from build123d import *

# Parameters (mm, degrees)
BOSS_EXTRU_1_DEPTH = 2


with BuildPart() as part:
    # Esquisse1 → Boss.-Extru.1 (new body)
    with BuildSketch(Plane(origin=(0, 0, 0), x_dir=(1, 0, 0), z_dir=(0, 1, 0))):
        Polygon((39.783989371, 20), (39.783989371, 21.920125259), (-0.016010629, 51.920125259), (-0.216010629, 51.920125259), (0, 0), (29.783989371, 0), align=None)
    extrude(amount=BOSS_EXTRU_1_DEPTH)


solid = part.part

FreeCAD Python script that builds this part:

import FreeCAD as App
import Part
import Sketcher
Q = App.Units.Quantity


def add_polygon(sketch, points):
    """Adds a closed chain of lines whose ends are joined by coincident constraints."""
    first, n = sketch.GeometryCount, len(points)
    for a, b in zip(points, points[1:] + points[:1]):
        sketch.addGeometry(Part.LineSegment(App.Vector(*a, 0), App.Vector(*b, 0)), False)
    for i in range(n):
        sketch.addConstraint(Sketcher.Constraint("Coincident", first + i, 2, first + (i + 1) % n, 1))

doc = App.newDocument("Part")
body = doc.addObject("PartDesign::Body", "Body")

# Sketch on XZ plane
sketch1 = body.newObject("Sketcher::SketchObject", "Sketch")
sketch1.AttachmentSupport = (doc.getObject("XZ_Plane"), [""])
sketch1.MapMode = "FlatFace"
add_polygon(sketch1, [(39.78, -20), (39.78, -21.92), (-0.02, -51.92), (-0.22, -51.92), (0, 0), (29.78, 0)])  # lines 0-5
sketch1.addConstraint(Sketcher.Constraint("Vertical", 0))
sketch1.addConstraint(Sketcher.Constraint("Horizontal", 2))
sketch1.addConstraint(Sketcher.Constraint("Horizontal", 4))
sketch1.addConstraint(Sketcher.Constraint("Coincident", 3, 2, -1, 1))
sketch1.addConstraint(Sketcher.Constraint("DistanceX", 2, 2, 2, 1, Q("0.2 mm")))
sketch1.addConstraint(Sketcher.Constraint("DistanceY", 5, 2, -1, 1, Q("20 mm")))
sketch1.addConstraint(Sketcher.Constraint("DistanceY", 1, 2, 0, 2, Q("30 mm")))
sketch1.addConstraint(Sketcher.Constraint("DistanceX", 2, 2, 0, 2, Q("40 mm")))
sketch1.addConstraint(Sketcher.Constraint("DistanceX", 4, 2, 0, 2, Q("10 mm")))
sketch1.addConstraint(Sketcher.Constraint("DistanceX", 4, 1, 4, 2, Q("29.783989 mm")))
sketch1.addConstraint(Sketcher.Constraint("DistanceY", 0, 2, 0, 1, Q("1.920125 mm")))
pad1 = body.newObject("PartDesign::Pad", "Pad")
pad1.Profile = sketch1
pad1.Length = 2
pad1.Reversed = True

doc.recompute()
